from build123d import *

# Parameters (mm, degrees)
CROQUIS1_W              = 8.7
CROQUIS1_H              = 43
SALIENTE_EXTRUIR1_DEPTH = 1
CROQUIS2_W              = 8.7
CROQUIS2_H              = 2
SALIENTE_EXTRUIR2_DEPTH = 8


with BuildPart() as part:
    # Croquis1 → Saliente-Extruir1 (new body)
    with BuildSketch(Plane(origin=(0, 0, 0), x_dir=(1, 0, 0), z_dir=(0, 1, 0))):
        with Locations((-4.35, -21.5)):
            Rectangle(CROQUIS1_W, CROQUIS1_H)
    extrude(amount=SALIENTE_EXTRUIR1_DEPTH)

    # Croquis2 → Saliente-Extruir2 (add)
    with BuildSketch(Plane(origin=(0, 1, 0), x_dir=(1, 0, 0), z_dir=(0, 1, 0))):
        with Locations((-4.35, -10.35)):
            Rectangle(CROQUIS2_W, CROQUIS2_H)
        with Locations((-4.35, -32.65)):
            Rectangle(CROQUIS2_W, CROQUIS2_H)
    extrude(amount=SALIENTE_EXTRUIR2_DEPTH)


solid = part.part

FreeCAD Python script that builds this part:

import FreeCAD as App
import Part
import Sketcher
from FreeCAD import Vector
Q = App.Units.Quantity

doc = App.newDocument("Part")
params = doc.addObject("Spreadsheet::Sheet", "Params")
for row, (alias, value) in enumerate([
    ("sketch1_height", "43 mm"),
    ("sketch1_width", "8.7 mm"),
    ("pad1_length", "1 mm"),
    ("sketch2_height", "2 mm"),
    ("sketch2_width", "8.7 mm"),
    ("pad2_length", "8 mm"),
], start=1):
    params.set(f"A{row}", alias)
    params.set(f"B{row}", "=" + value)
    params.setAlias(f"B{row}", alias)

body = doc.addObject("PartDesign::Body", "Body")

sketch1 = body.newObject("Sketcher::SketchObject", "Sketch")
sketch1.AttachmentSupport = (doc.getObject("XZ_Plane"), [""])
sketch1.MapMode = "FlatFace"
sketch1.addGeometry([
    Part.LineSegment(Vector(-9, 0, 0), Vector(-9, 43, 0)),
    Part.LineSegment(Vector(-9, 43, 0), Vector(0, 43, 0)),
    Part.LineSegment(Vector(0, 43, 0), Vector(0, 0, 0)),
    Part.LineSegment(Vector(0, 0, 0), Vector(-9, 0, 0)),
], False)
sketch1.addConstraint([
    Sketcher.Constraint("Coincident", 0, 2, 1, 1),
    Sketcher.Constraint("Coincident", 1, 2, 2, 1),
    Sketcher.Constraint("Coincident", 2, 2, 3, 1),
    Sketcher.Constraint("Coincident", 3, 2, 0, 1),
    Sketcher.Constraint("Vertical", 0),
    Sketcher.Constraint("Horizontal", 1),
    Sketcher.Constraint("Vertical", 2),
    Sketcher.Constraint("Horizontal", 3),
    Sketcher.Constraint("Coincident", 2, 2, -1, 1),
    Sketcher.Constraint("DistanceY", 0, 1, 0, 2, Q("43 mm")),
    Sketcher.Constraint("DistanceX", 1, 1, 1, 2, Q("8.7 mm")),
])
sketch1.setExpression("Constraints[9]", "Params.sketch1_height")
sketch1.setExpression("Constraints[10]", "Params.sketch1_width")
pad1 = body.newObject("PartDesign::Pad", "Pad")
pad1.Profile = sketch1
pad1.setExpression("Length", "Params.pad1_length")
pad1.Reversed = True

sketch2 = body.newObject("Sketcher::SketchObject", "Sketch001")
sketch2.AttachmentSupport = (doc.getObject("XZ_Plane"), [""])
sketch2.MapMode = "FlatFace"
sketch2.AttachmentOffset = App.Placement(Vector(0, 0, -1), App.Rotation())
sketch2.addGeometry([
    Part.LineSegment(Vector(-8.7, 9.3, 0), Vector(-8.7, 11.3, 0)),
    Part.LineSegment(Vector(-8.7, 11.3, 0), Vector(0, 11.3, 0)),
    Part.LineSegment(Vector(0, 11.3, 0), Vector(0, 9.3, 0)),
    Part.LineSegment(Vector(0, 9.3, 0), Vector(-8.7, 9.3, 0)),
    Part.LineSegment(Vector(-8.7, 31.6, 0), Vector(-8.7, 33.6, 0)),
    Part.LineSegment(Vector(-8.7, 33.6, 0), Vector(0, 33.6, 0)),
    Part.LineSegment(Vector(0, 33.6, 0), Vector(0, 31.6, 0)),
    Part.LineSegment(Vector(0, 31.6, 0), Vector(-8.7, 31.6, 0)),
], False)
sketch2.addConstraint([
    Sketcher.Constraint("Coincident", 0, 2, 1, 1),
    Sketcher.Constraint("Coincident", 1, 2, 2, 1),
    Sketcher.Constraint("Coincident", 2, 2, 3, 1),
    Sketcher.Constraint("Coincident", 3, 2, 0, 1),
    Sketcher.Constraint("Coincident", 4, 2, 5, 1),
    Sketcher.Constraint("Coincident", 5, 2, 6, 1),
    Sketcher.Constraint("Coincident", 6, 2, 7, 1),
    Sketcher.Constraint("Coincident", 7, 2, 4, 1),
    Sketcher.Constraint("Vertical", 0),
    Sketcher.Constraint("Horizontal", 1),
    Sketcher.Constraint("Vertical", 2),
    Sketcher.Constraint("Horizontal", 3),
    Sketcher.Constraint("Vertical", 4),
    Sketcher.Constraint("Horizontal", 5),
    Sketcher.Constraint("Vertical", 6),
    Sketcher.Constraint("Horizontal", 7),
    Sketcher.Constraint("PointOnObject", 1, 2, -2),
    Sketcher.Constraint("PointOnObject", 5, 2, -2),
    Sketcher.Constraint("Vertical", 3, 2, 4, 2),
    Sketcher.Constraint("Equal", 2, 4),
    Sketcher.Constraint("DistanceY", 0, 1, 0, 2, Q("2 mm")),
    Sketcher.Constraint("DistanceX", 1, 1, 1, 2, Q("8.7 mm")),
    Sketcher.Constraint("DistanceY", 0, 2, 4, 2, Q("22.3 mm")),
    Sketcher.Constraint("DistanceY", -1, 1, 0, 2, Q("11.35 mm")),
])
sketch2.setExpression("Constraints[20]", "Params.sketch2_height")
sketch2.setExpression("Constraints[21]", "Params.sketch2_width")
pad2 = body.newObject("PartDesign::Pad", "Pad001")
pad2.Profile = sketch2
pad2.setExpression("Length", "Params.pad2_length")
pad2.Reversed = True

doc.recompute()
